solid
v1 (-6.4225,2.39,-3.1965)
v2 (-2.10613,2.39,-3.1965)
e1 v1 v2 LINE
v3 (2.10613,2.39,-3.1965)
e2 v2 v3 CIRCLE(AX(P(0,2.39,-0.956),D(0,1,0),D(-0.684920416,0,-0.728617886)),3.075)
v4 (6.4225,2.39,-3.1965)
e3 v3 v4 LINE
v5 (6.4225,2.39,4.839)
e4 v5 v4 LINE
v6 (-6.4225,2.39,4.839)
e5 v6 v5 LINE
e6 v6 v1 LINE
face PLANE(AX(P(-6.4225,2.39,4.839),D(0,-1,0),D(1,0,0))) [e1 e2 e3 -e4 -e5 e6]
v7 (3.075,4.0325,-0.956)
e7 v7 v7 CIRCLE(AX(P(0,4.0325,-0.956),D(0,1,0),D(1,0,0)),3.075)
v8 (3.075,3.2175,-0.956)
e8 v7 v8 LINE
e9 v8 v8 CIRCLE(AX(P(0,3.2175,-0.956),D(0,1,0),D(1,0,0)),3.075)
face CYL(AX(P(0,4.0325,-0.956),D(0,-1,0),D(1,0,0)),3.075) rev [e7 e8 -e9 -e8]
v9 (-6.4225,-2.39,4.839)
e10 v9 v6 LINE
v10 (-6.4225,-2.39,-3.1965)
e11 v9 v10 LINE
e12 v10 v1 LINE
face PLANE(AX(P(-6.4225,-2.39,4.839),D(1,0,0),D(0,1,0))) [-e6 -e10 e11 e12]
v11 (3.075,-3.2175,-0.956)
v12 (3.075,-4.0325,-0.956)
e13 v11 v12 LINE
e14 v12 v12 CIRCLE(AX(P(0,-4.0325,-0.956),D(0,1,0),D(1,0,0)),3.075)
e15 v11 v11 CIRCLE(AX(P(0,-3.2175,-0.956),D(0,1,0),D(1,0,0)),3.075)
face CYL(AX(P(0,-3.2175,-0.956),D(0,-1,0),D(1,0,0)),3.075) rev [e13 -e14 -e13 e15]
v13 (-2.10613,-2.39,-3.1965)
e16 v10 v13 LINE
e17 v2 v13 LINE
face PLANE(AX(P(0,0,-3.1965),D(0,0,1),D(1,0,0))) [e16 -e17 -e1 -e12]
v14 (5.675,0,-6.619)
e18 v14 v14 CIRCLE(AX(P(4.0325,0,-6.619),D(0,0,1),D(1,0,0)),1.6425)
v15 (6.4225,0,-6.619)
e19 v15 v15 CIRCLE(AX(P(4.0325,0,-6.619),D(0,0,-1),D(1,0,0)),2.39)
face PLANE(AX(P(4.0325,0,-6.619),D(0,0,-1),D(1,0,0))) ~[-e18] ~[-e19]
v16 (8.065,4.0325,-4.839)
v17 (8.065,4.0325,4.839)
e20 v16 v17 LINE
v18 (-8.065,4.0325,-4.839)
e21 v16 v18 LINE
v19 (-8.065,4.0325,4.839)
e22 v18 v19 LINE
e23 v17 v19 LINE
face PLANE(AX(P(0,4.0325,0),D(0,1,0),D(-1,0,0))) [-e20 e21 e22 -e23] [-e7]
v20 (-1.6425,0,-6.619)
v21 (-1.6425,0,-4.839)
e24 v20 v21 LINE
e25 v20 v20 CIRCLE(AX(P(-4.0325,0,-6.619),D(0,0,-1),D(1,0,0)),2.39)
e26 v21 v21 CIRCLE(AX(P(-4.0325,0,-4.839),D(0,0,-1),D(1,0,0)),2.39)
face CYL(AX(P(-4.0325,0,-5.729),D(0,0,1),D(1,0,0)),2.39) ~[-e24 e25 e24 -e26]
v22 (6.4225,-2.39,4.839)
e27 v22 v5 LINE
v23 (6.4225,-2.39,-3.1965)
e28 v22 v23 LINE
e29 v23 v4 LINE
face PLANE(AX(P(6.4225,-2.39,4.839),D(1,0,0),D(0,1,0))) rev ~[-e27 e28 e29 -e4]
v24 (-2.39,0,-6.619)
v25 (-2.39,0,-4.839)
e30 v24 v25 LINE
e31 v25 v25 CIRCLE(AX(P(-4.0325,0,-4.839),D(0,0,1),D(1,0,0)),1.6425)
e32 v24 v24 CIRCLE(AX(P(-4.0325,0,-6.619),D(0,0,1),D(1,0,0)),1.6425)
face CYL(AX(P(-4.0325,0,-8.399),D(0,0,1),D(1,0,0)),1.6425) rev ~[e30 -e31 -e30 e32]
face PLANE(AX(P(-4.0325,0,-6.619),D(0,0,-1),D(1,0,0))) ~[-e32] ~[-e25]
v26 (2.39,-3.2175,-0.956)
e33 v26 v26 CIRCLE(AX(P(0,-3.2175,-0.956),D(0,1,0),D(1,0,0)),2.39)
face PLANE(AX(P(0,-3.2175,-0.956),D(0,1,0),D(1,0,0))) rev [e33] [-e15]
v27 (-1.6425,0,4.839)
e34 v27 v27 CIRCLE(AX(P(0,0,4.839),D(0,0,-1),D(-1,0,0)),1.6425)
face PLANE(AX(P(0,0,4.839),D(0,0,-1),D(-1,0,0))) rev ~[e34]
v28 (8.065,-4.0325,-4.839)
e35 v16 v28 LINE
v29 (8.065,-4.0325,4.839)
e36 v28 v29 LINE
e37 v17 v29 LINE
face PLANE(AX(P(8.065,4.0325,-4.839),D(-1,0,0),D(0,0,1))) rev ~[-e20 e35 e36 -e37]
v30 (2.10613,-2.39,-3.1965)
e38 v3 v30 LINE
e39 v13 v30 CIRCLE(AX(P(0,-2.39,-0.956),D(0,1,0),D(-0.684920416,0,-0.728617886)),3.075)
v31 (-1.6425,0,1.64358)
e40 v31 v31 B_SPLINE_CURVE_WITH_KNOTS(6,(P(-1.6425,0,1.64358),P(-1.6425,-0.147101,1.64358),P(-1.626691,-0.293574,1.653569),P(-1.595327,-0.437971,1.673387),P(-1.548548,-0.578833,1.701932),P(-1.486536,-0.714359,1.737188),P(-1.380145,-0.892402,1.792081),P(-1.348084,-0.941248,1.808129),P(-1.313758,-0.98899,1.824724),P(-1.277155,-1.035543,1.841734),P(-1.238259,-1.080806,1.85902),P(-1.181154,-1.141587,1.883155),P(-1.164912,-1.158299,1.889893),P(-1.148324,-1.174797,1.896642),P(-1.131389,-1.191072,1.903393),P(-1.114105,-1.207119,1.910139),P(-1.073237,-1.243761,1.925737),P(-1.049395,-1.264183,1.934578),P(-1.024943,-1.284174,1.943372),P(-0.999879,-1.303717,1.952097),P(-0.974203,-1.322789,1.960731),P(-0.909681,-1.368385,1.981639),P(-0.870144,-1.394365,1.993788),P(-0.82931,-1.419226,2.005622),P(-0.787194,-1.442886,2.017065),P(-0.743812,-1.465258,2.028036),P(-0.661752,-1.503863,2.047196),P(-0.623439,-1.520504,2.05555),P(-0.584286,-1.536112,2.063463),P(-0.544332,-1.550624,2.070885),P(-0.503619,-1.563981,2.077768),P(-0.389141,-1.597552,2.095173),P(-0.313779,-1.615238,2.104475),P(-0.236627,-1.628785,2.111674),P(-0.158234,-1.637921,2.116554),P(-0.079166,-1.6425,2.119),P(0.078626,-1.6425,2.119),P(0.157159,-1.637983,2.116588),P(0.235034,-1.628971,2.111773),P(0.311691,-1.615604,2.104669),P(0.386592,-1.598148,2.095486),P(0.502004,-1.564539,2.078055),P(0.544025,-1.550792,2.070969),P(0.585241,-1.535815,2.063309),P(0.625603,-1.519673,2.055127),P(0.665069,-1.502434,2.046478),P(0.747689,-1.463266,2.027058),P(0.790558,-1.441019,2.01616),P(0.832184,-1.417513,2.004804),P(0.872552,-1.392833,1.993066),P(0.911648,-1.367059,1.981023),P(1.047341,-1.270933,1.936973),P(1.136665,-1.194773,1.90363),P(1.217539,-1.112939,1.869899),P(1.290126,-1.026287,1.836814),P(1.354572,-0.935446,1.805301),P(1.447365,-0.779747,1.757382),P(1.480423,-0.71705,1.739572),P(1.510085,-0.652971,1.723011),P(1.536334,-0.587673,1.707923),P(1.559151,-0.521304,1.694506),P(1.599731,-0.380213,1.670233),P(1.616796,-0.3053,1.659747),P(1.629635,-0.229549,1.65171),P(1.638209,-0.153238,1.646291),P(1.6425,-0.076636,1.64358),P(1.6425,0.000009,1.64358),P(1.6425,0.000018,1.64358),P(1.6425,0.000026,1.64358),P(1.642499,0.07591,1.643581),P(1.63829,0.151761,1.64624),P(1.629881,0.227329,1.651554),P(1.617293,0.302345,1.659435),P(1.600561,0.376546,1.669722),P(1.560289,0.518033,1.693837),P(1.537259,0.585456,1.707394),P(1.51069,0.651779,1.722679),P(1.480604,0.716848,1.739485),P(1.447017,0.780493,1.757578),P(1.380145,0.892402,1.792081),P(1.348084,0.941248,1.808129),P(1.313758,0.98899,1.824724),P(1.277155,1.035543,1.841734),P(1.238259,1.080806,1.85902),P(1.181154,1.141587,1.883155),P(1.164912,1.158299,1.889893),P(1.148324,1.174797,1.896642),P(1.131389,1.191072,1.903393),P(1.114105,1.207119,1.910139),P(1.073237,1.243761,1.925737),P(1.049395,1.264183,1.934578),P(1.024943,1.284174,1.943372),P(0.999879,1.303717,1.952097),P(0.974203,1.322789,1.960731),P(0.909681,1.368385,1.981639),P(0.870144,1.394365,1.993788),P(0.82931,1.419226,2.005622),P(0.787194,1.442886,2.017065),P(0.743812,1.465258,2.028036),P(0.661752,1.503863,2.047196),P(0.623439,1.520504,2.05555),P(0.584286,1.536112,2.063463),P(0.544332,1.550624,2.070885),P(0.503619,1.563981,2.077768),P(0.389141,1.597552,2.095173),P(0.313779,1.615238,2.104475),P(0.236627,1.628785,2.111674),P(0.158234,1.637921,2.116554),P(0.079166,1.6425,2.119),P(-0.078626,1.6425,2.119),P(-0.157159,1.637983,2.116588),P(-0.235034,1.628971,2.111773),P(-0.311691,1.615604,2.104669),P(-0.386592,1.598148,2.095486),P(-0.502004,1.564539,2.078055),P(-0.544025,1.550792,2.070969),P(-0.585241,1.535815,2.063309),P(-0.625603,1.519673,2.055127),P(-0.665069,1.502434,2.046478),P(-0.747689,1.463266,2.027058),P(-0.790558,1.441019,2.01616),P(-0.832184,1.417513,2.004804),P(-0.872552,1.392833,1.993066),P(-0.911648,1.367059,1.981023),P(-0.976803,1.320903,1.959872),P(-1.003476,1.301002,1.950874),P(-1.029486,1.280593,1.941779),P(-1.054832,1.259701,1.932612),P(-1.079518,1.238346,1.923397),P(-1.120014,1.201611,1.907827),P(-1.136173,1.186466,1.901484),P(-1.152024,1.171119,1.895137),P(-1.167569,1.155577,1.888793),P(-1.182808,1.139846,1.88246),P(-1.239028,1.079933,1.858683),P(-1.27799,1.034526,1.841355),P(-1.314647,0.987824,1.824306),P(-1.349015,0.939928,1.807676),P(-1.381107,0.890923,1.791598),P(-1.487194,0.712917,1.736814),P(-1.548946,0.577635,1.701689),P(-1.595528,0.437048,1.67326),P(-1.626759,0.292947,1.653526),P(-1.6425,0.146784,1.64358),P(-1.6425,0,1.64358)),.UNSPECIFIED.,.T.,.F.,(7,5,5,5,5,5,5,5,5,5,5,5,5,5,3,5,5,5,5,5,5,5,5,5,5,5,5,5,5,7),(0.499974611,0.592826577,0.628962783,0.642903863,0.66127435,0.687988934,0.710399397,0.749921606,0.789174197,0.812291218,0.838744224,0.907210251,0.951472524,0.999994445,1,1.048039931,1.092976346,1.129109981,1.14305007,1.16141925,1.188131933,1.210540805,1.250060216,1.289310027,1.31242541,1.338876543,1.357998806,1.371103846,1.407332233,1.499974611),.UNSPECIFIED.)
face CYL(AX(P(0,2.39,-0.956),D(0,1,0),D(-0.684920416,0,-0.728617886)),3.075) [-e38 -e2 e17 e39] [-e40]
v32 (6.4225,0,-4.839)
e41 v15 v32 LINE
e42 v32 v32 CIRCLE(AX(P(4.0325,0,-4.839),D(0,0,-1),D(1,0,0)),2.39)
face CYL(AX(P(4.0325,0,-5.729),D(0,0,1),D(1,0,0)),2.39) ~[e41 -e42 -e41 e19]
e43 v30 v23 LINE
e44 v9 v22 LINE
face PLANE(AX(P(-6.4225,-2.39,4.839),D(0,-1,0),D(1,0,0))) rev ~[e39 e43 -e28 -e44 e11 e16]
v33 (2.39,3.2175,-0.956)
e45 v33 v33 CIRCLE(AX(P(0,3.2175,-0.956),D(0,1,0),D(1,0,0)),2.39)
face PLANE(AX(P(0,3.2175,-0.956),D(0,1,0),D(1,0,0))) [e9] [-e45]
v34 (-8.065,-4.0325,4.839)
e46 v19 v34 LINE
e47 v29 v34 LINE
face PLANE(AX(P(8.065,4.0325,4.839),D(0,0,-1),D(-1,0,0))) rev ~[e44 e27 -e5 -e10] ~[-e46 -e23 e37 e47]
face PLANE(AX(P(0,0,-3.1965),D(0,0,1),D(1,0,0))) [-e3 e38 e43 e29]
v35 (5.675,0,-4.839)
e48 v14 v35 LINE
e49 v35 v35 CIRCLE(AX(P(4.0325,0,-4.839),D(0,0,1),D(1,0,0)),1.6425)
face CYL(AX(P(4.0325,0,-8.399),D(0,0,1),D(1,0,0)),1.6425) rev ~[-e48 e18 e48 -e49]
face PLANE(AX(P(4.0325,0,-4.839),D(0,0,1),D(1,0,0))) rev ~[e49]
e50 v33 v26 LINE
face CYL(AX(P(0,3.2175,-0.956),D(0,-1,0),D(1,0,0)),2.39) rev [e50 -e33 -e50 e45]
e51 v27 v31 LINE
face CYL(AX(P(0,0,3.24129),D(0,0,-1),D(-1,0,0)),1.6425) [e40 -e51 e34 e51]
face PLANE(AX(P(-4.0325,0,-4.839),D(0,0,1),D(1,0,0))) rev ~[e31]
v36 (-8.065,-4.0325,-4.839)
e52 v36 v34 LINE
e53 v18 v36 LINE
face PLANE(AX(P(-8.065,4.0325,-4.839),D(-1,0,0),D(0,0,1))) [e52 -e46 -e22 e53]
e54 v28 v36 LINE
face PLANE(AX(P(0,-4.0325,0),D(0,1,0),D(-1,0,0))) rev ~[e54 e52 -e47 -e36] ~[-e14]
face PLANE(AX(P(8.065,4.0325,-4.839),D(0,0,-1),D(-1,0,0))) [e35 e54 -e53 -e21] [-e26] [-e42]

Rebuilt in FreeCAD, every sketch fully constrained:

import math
import FreeCAD as App
import Part
import Sketcher


def add_polygon(sketch, points):
    """Adds a closed chain of lines whose ends are joined by coincident constraints."""
    first, n = sketch.GeometryCount, len(points)
    for a, b in zip(points, points[1:] + points[:1]):
        sketch.addGeometry(Part.LineSegment(App.Vector(*a, 0), App.Vector(*b, 0)), False)
    for i in range(n):
        sketch.addConstraint(Sketcher.Constraint("Coincident", first + i, 2, first + (i + 1) % n, 1))

doc = App.newDocument("Part")
body = doc.addObject("PartDesign::Body", "Body")

sketch1 = body.newObject("Sketcher::SketchObject", "Sketch")
sketch1.AttachmentSupport = (doc.getObject("XZ_Plane"), [""])
sketch1.MapMode = "FlatFace"
sketch1.AttachmentOffset = App.Placement(App.Vector(0, 0, -4.0325), App.Rotation())
add_polygon(sketch1, [(8.065, 4.839), (8.065, -4.839), (-8.065, -4.839), (-8.065, 4.839)])
sketch1.addConstraint([
    Sketcher.Constraint("Vertical", 0),
    Sketcher.Constraint("Horizontal", 1),
    Sketcher.Constraint("Vertical", 2),
    Sketcher.Constraint("Horizontal", 3),
    Sketcher.Constraint("Symmetric", 0, 2, 2, 2, -1, 1),
    Sketcher.Constraint("DistanceX", 1, 2, 1, 1, 16.13),
    Sketcher.Constraint("DistanceY", 0, 2, 0, 1, 9.678),
])
pad1 = body.newObject("PartDesign::Pad", "Pad")
pad1.Profile = sketch1
pad1.Length = 8.065

sketch2 = body.newObject("Sketcher::SketchObject", "Sketch001")
sketch2.AttachmentSupport = (doc.getObject("XY_Plane"), [""])
sketch2.MapMode = "FlatFace"
sketch2.AttachmentOffset = App.Placement(App.Vector(0, 0, 4.839), App.Rotation())
add_polygon(sketch2, [(-6.4225, 2.39), (-6.4225, -2.39), (6.4225, -2.39), (6.4225, 2.39)])
sketch2.addConstraint([
    Sketcher.Constraint("Vertical", 0),
    Sketcher.Constraint("Horizontal", 1),
    Sketcher.Constraint("Vertical", 2),
    Sketcher.Constraint("Horizontal", 3),
    Sketcher.Constraint("Symmetric", 0, 2, 2, 2, -1, 1),
    Sketcher.Constraint("DistanceY", 0, 2, 0, 1, 4.78),
    Sketcher.Constraint("DistanceX", 1, 1, 1, 2, 12.845),
])
pocket1 = body.newObject("PartDesign::Pocket", "Pocket")
pocket1.Profile = sketch2
pocket1.Length = 8.0355

sketch3 = body.newObject("Sketcher::SketchObject", "Sketch002")
sketch3.AttachmentSupport = (doc.getObject("XZ_Plane"), [""])
sketch3.MapMode = "FlatFace"
sketch3.AttachmentOffset = App.Placement(App.Vector(0, 0, -2.39), App.Rotation())
sketch3.addGeometry([
    Part.LineSegment(App.Vector(-2.10613, -3.1965, 0), App.Vector(2.10613, -3.1965, 0)),
    Part.ArcOfCircle(Part.Circle(App.Vector(0, -0.956, 0), App.Vector(0, 0, 1), 3.075), math.radians(-46.770651), math.radians(226.770651)),
], False)
sketch3.addConstraint([
    Sketcher.Constraint("Coincident", 0, 1, 1, 2),
    Sketcher.Constraint("Coincident", 1, 1, 0, 2),
    Sketcher.Constraint("Horizontal", 0),
    Sketcher.Constraint("PointOnObject", 1, 3, -2),
    Sketcher.Constraint("Radius", 1, 3.075),
    Sketcher.Constraint("DistanceY", 1, 3, -1, 1, 0.956),
    Sketcher.Constraint("DistanceX", 0, 1, 0, 2, 4.212261),
])
pad2 = body.newObject("PartDesign::Pad", "Pad001")
pad2.Profile = sketch3
pad2.Length = 4.78

sketch4 = body.newObject("Sketcher::SketchObject", "Sketch003")
sketch4.AttachmentSupport = (doc.getObject("XZ_Plane"), [""])
sketch4.MapMode = "FlatFace"
add_polygon(sketch4, [(4.0325, -4.839), (4.0325, -6.619), (6.4225, -6.619), (6.4225, -4.839)])
sketch4.addGeometry(Part.LineSegment(App.Vector(4.0325, -4.839, 0), App.Vector(4.0325, -6.619, 0)), True)
sketch4.addConstraint([
    Sketcher.Constraint("Vertical", 0),
    Sketcher.Constraint("Horizontal", 1),
    Sketcher.Constraint("Vertical", 2),
    Sketcher.Constraint("Horizontal", 3),
    Sketcher.Constraint("Vertical", 4),
    Sketcher.Constraint("Coincident", 4, 1, 3, 2),
    Sketcher.Constraint("Horizontal", 1, 2, 4, 2),
    Sketcher.Constraint("DistanceX", 1, 1, 1, 2, 2.39),
    Sketcher.Constraint("DistanceY", 0, 2, 0, 1, 1.78),
    Sketcher.Constraint("DistanceY", 0, 2, -1, 1, 6.619),
    Sketcher.Constraint("DistanceX", -1, 1, 0, 2, 4.0325),
])
revolution = body.newObject("PartDesign::Revolution", "Revolution")
revolution.Profile = sketch4
revolution.ReferenceAxis = (sketch4, ["Axis0"])
revolution.Angle = 360

sketch5 = body.newObject("Sketcher::SketchObject", "Sketch004")
sketch5.AttachmentSupport = (doc.getObject("XZ_Plane"), [""])
sketch5.MapMode = "FlatFace"
add_polygon(sketch5, [(-4.0325, -4.839), (-4.0325, -6.619), (-1.6425, -6.619), (-1.6425, -4.839)])
sketch5.addGeometry(Part.LineSegment(App.Vector(-4.0325, -4.839, 0), App.Vector(-4.0325, -6.619, 0)), True)
sketch5.addConstraint([
    Sketcher.Constraint("Vertical", 0),
    Sketcher.Constraint("Horizontal", 1),
    Sketcher.Constraint("Vertical", 2),
    Sketcher.Constraint("Horizontal", 3),
    Sketcher.Constraint("Vertical", 4),
    Sketcher.Constraint("Coincident", 4, 1, 3, 2),
    Sketcher.Constraint("Horizontal", 1, 2, 4, 2),
    Sketcher.Constraint("DistanceX", 1, 1, 1, 2, 2.39),
    Sketcher.Constraint("DistanceY", 0, 2, 0, 1, 1.78),
    Sketcher.Constraint("DistanceY", 0, 2, -1, 1, 6.619),
    Sketcher.Constraint("DistanceX", 0, 2, -1, 1, 4.0325),
])
revolution2 = body.newObject("PartDesign::Revolution", "Revolution001")
revolution2.Profile = sketch5
revolution2.ReferenceAxis = (sketch5, ["Axis0"])
revolution2.Angle = 360

sketch6 = body.newObject("Sketcher::SketchObject", "Sketch005")
sketch6.AttachmentSupport = (doc.getObject("XY_Plane"), [""])
sketch6.MapMode = "FlatFace"
sketch6.AttachmentOffset = App.Placement(App.Vector(0, 0, -0.956), App.Rotation())
add_polygon(sketch6, [(3.075, -4.0325), (0, -4.0325), (0, 4.0325), (3.075, 4.0325), (3.075, 3.2175), (2.39, 3.2175), (2.39, -3.2175), (3.075, -3.2175)])
sketch6.addConstraint([
    Sketcher.Constraint("Horizontal", 0),
    Sketcher.Constraint("Vertical", 1),
    Sketcher.Constraint("Horizontal", 2),
    Sketcher.Constraint("Vertical", 3),
    Sketcher.Constraint("Horizontal", 4),
    Sketcher.Constraint("Vertical", 5),
    Sketcher.Constraint("Horizontal", 6),
    Sketcher.Constraint("Vertical", 7),
    Sketcher.Constraint("Symmetric", 0, 2, 1, 2, -1, 1),
    Sketcher.Constraint("Symmetric", 3, 2, 6, 2, -1),
    Sketcher.Constraint("DistanceX", 0, 2, 0, 1, 3.075),
    Sketcher.Constraint("DistanceX", 4, 2, 4, 1, 0.685),
    Sketcher.Constraint("DistanceY", 1, 1, 1, 2, 8.065),
    Sketcher.Constraint("DistanceY", 3, 2, 3, 1, 0.815),
])
groove = body.newObject("PartDesign::Groove", "Groove")
groove.Profile = sketch6
groove.ReferenceAxis = (sketch6, ["V_Axis"])
groove.Angle = 360

sketch7 = body.newObject("Sketcher::SketchObject", "Sketch006")
sketch7.AttachmentSupport = (doc.getObject("XZ_Plane"), [""])
sketch7.MapMode = "FlatFace"
add_polygon(sketch7, [(-1.6425, 1.64358), (-1.6425, 4.839), (0, 4.839), (0, 1.64358)])
sketch7.addConstraint([
    Sketcher.Constraint("Vertical", 0),
    Sketcher.Constraint("Horizontal", 1),
    Sketcher.Constraint("Vertical", 2),
    Sketcher.Constraint("Horizontal", 3),
    Sketcher.Constraint("PointOnObject", 1, 2, -2),
    Sketcher.Constraint("DistanceX", 1, 1, 1, 2, 1.6425),
    Sketcher.Constraint("DistanceY", -1, 1, 0, 2, 4.839),
    Sketcher.Constraint("DistanceY", 0, 1, 0, 2, 3.19542),
])
revolution3 = body.newObject("PartDesign::Revolution", "Revolution002")
revolution3.Profile = sketch7
revolution3.ReferenceAxis = (sketch7, ["V_Axis"])
revolution3.Angle = 360

sketch8 = body.newObject("Sketcher::SketchObject", "Sketch007")
sketch8.AttachmentSupport = (doc.getObject("XY_Plane"), [""])
sketch8.MapMode = "FlatFace"
sketch8.AttachmentOffset = App.Placement(App.Vector(0, 0, -6.619), App.Rotation())
sketch8.addGeometry([
    Part.Circle(App.Vector(-4.0325, 0, 0), App.Vector(0, 0, 1), 1.6425),
    Part.Circle(App.Vector(4.0325, 0, 0), App.Vector(0, 0, 1), 1.6425),
], False)
sketch8.addConstraint([
    Sketcher.Constraint("Equal", 0, 1),
    Sketcher.Constraint("Symmetric", 0, 3, 1, 3, -1, 1),
    Sketcher.Constraint("PointOnObject", 0, 3, -1),
    Sketcher.Constraint("Diameter", 0, 3.285),
    Sketcher.Constraint("DistanceX", 0, 3, 1, 3, 8.065),
])
doc.recompute()
hole = body.newObject("PartDesign::Hole", "Hole")
hole.Profile = sketch8
hole.ThreadType = "None"
hole.Diameter = 3.285
hole.DepthType = "Dimension"
hole.Depth = 1.78
hole.DrillPoint = "Flat"
hole.Reversed = True

doc.recompute()
